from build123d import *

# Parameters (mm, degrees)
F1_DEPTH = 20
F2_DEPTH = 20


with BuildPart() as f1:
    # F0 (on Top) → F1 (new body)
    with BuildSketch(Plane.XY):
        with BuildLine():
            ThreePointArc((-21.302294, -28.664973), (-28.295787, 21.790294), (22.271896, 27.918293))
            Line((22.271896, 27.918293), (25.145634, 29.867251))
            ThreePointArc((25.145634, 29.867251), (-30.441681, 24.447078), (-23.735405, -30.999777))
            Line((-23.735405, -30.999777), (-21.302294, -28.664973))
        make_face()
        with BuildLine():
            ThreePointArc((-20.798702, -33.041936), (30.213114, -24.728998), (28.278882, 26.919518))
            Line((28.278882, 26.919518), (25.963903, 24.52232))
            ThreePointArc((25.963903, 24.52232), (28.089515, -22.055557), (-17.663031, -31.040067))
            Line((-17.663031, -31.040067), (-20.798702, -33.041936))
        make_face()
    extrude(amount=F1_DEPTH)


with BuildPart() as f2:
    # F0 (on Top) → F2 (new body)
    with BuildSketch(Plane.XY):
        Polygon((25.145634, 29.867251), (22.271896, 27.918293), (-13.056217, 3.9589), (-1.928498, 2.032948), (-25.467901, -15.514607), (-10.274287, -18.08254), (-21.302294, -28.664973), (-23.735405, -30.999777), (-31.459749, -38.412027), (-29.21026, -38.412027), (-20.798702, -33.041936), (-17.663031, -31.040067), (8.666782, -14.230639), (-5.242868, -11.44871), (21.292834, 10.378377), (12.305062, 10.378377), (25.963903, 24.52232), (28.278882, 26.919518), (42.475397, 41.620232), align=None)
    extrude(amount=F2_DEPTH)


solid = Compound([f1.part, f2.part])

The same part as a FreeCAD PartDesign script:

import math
import FreeCAD as App
import Part
import Sketcher

V = App.Vector
Q = App.Units.Quantity

doc = App.newDocument("Part")
params = doc.addObject("Spreadsheet::Sheet", "Params")
for row, (alias, value) in enumerate([
    ("pad1_length", "20 mm"),
    ("pad2_length", "20 mm"),
], start=1):
    params.set(f"A{row}", alias)
    params.set(f"B{row}", "=" + value)
    params.setAlias(f"B{row}", alias)

body = doc.addObject("PartDesign::Body", "Body")
body.AllowCompound = True

# Sketch on XY plane
sketch1 = body.newObject("Sketcher::SketchObject", "Sketch")
sketch1.AttachmentSupport = (doc.getObject("XY_Plane"), [""])
sketch1.MapMode = "FlatFace"
sketch1.addGeometry([
    Part.ArcOfCircle(Part.Circle(V(0, 0.000001, 0), V(0, 0, 1), 35.713701), math.radians(51.418786), math.radians(233.382219)),  # 0
    Part.LineSegment(V(22.271896, 27.918293, 0), V(25.145634, 29.867251, 0)),  # 1
    Part.ArcOfCircle(Part.Circle(V(0, -0.000001, 0), V(0, 0, 1), 39.042997), math.radians(49.905531), math.radians(232.560029)),  # 2
    Part.LineSegment(V(-23.735405, -30.999777, 0), V(-21.302294, -28.664973, 0)),  # 3
    Part.ArcOfCircle(Part.Circle(V(0.000001, 0, 0), V(0, 0, 1), 39.042996), math.radians(-122.188929), math.radians(43.58927)),  # 4
    Part.LineSegment(V(28.278882, 26.919518, 0), V(25.963903, 24.52232, 0)),  # 5
    Part.ArcOfCircle(Part.Circle(V(0, 0, 0), V(0, 0, 1), 35.713701), math.radians(-119.641596), math.radians(43.364422)),  # 6
    Part.LineSegment(V(-17.663031, -31.040067, 0), V(-20.798702, -33.041936, 0)),  # 7
], False)
sketch1.addConstraint([
    Sketcher.Constraint("Coincident", 0, 1, 1, 1),
    Sketcher.Constraint("Coincident", 1, 2, 2, 1),
    Sketcher.Constraint("Coincident", 2, 2, 3, 1),
    Sketcher.Constraint("Coincident", 3, 2, 0, 2),
    Sketcher.Constraint("Coincident", 4, 2, 5, 1),
    Sketcher.Constraint("Coincident", 5, 2, 6, 2),
    Sketcher.Constraint("Coincident", 6, 1, 7, 1),
    Sketcher.Constraint("Coincident", 7, 2, 4, 1),
    Sketcher.Constraint("Coincident", 0, 3, -1, 1),
    Sketcher.Constraint("Coincident", 2, 3, -1, 1),
    Sketcher.Constraint("Coincident", 4, 3, -1, 1),
    Sketcher.Constraint("Coincident", 6, 3, -1, 1),
    Sketcher.Constraint("Equal", 2, 4),
    Sketcher.Constraint("Equal", 0, 6),
    Sketcher.Constraint("Radius", 0, Q("35.713701 mm")),
    Sketcher.Constraint("Radius", 2, Q("39.042997 mm")),
    Sketcher.Constraint("DistanceX", 7, 2, -1, 1, Q("20.798702 mm")),
    Sketcher.Constraint("DistanceX", 2, 2, 0, 1, Q("46.007301 mm")),
    Sketcher.Constraint("DistanceY", 5, 2, 4, 2, Q("2.397198 mm")),
    Sketcher.Constraint("Distance", 1, Q("3.472291 mm")),
    Sketcher.Constraint("Distance", 3, Q("3.372142 mm")),
    Sketcher.Constraint("DistanceY", -1, 1, 1, 2, Q("29.867251 mm")),
    Sketcher.Constraint("DistanceY", -1, 1, 4, 2, Q("26.919518 mm")),
    Sketcher.Constraint("DistanceX", 6, 1, -1, 1, Q("17.663031 mm")),
])
pad1 = body.newObject("PartDesign::Pad", "Pad")
pad1.Profile = sketch1
pad1.setExpression("Length", "Params.pad1_length")
body2 = doc.addObject("PartDesign::Body", "Body001")

# Sketch on XY plane
sketch2 = body2.newObject("Sketcher::SketchObject", "Sketch001")
sketch2.AttachmentSupport = (doc.getObject("XY_Plane001"), [""])
sketch2.MapMode = "FlatFace"
sketch2.addGeometry([
    Part.LineSegment(V(25.145634, 29.867251, 0), V(22.271896, 27.918293, 0)),  # 0
    Part.LineSegment(V(22.271896, 27.918293, 0), V(-13.056217, 3.9589, 0)),  # 1
    Part.LineSegment(V(-13.056217, 3.9589, 0), V(-1.928498, 2.032948, 0)),  # 2
    Part.LineSegment(V(-1.928498, 2.032948, 0), V(-25.467901, -15.514607, 0)),  # 3
    Part.LineSegment(V(-25.467901, -15.514607, 0), V(-10.274287, -18.08254, 0)),  # 4
    Part.LineSegment(V(-10.274287, -18.08254, 0), V(-21.302294, -28.664973, 0)),  # 5
    Part.LineSegment(V(-21.302294, -28.664973, 0), V(-23.735405, -30.999777, 0)),  # 6
    Part.LineSegment(V(-23.735405, -30.999777, 0), V(-31.459749, -38.412027, 0)),  # 7
    Part.LineSegment(V(-31.459749, -38.412027, 0), V(-29.21026, -38.412027, 0)),  # 8
    Part.LineSegment(V(-29.21026, -38.412027, 0), V(-20.798702, -33.041936, 0)),  # 9
    Part.LineSegment(V(-20.798702, -33.041936, 0), V(-17.663031, -31.040067, 0)),  # 10
    Part.LineSegment(V(-17.663031, -31.040067, 0), V(8.666782, -14.230639, 0)),  # 11
    Part.LineSegment(V(8.666782, -14.230639, 0), V(-5.242868, -11.44871, 0)),  # 12
    Part.LineSegment(V(-5.242868, -11.44871, 0), V(21.292834, 10.378377, 0)),  # 13
    Part.LineSegment(V(21.292834, 10.378377, 0), V(12.305062, 10.378377, 0)),  # 14
    Part.LineSegment(V(12.305062, 10.378377, 0), V(25.963903, 24.52232, 0)),  # 15
    Part.LineSegment(V(25.963903, 24.52232, 0), V(28.278882, 26.919518, 0)),  # 16
    Part.LineSegment(V(28.278882, 26.919518, 0), V(42.475397, 41.620232, 0)),  # 17
    Part.LineSegment(V(42.475397, 41.620232, 0), V(25.145634, 29.867251, 0)),  # 18
], False)
sketch2.addConstraint([
    Sketcher.Constraint("Coincident", 0, 2, 1, 1),
    Sketcher.Constraint("Coincident", 1, 2, 2, 1),
    Sketcher.Constraint("Coincident", 2, 2, 3, 1),
    Sketcher.Constraint("Coincident", 3, 2, 4, 1),
    Sketcher.Constraint("Coincident", 4, 2, 5, 1),
    Sketcher.Constraint("Coincident", 5, 2, 6, 1),
    Sketcher.Constraint("Coincident", 6, 2, 7, 1),
    Sketcher.Constraint("Coincident", 7, 2, 8, 1),
    Sketcher.Constraint("Coincident", 8, 2, 9, 1),
    Sketcher.Constraint("Coincident", 9, 2, 10, 1),
    Sketcher.Constraint("Coincident", 10, 2, 11, 1),
    Sketcher.Constraint("Coincident", 11, 2, 12, 1),
    Sketcher.Constraint("Coincident", 12, 2, 13, 1),
    Sketcher.Constraint("Coincident", 13, 2, 14, 1),
    Sketcher.Constraint("Coincident", 14, 2, 15, 1),
    Sketcher.Constraint("Coincident", 15, 2, 16, 1),
    Sketcher.Constraint("Coincident", 16, 2, 17, 1),
    Sketcher.Constraint("Coincident", 17, 2, 18, 1),
    Sketcher.Constraint("Coincident", 18, 2, 0, 1),
    Sketcher.Constraint("Horizontal", 8),
    Sketcher.Constraint("Horizontal", 14),
    Sketcher.Constraint("Parallel", 0, 1),
    Sketcher.Constraint("Parallel", 5, 6),
    Sketcher.Constraint("Parallel", 6, 7),
    Sketcher.Constraint("Parallel", 9, 10),
    Sketcher.Constraint("Parallel", 10, 11),
    Sketcher.Constraint("Parallel", 15, 16),
    Sketcher.Constraint("Parallel", 16, 17),
    Sketcher.Constraint("Parallel", 1, 18),
    Sketcher.Constraint("DistanceX", 1, 2, 11, 2, Q("21.722999 mm")),
    Sketcher.Constraint("DistanceX", 8, 1, 8, 2, Q("2.249489 mm")),
    Sketcher.Constraint("DistanceY", -1, 1, 1, 2, Q("3.9589 mm")),
    Sketcher.Constraint("DistanceX", 3, 2, -1, 1, Q("25.467901 mm")),
    Sketcher.Constraint("DistanceX", 9, 2, -1, 1, Q("20.798702 mm")),
    Sketcher.Constraint("DistanceY", 3, 2, 0, 2, Q("43.4329 mm")),
    Sketcher.Constraint("DistanceY", 4, 2, 11, 2, Q("3.851901 mm")),
    Sketcher.Constraint("DistanceX", 2, 2, 15, 2, Q("27.892401 mm")),
    Sketcher.Constraint("DistanceX", 0, 2, 17, 2, Q("20.203501 mm")),
    Sketcher.Constraint("DistanceX", 13, 2, 18, 2, Q("3.8528 mm")),
    Sketcher.Constraint("Distance", 0, Q("3.472291 mm")),
    Sketcher.Constraint("Distance", 2, Q("11.293158 mm")),
    Sketcher.Constraint("Distance", 3, Q("29.36018 mm")),
    Sketcher.Constraint("Distance", 6, Q("3.372142 mm")),
    Sketcher.Constraint("Distance", 9, Q("9.979588 mm")),
    Sketcher.Constraint("Distance", 15, Q("19.662529 mm")),
    Sketcher.Constraint("Distance", 16, Q("3.332519 mm")),
    Sketcher.Constraint("DistanceX", 14, 2, 14, 1, Q("8.987772 mm")),
    Sketcher.Constraint("DistanceY", -1, 1, 2, 2, Q("2.032948 mm")),
    Sketcher.Constraint("DistanceY", 4, 2, -1, 1, Q("18.08254 mm")),
    Sketcher.Constraint("DistanceX", 7, 2, -1, 1, Q("31.459749 mm")),
    Sketcher.Constraint("DistanceX", 10, 2, -1, 1, Q("17.663031 mm")),
    Sketcher.Constraint("DistanceY", 12, 2, -1, 1, Q("11.44871 mm")),
    Sketcher.Constraint("DistanceY", -1, 1, 15, 2, Q("24.52232 mm")),
    Sketcher.Constraint("DistanceX", -1, 1, 16, 2, Q("28.278882 mm")),
    Sketcher.Constraint("DistanceX", 4, 2, 2, 2, Q("8.345789 mm")),
    Sketcher.Constraint("DistanceY", 5, 2, 2, 2, Q("30.697921 mm")),
    Sketcher.Constraint("DistanceX", 4, 2, 12, 2, Q("5.031419 mm")),
])
pad2 = body2.newObject("PartDesign::Pad", "Pad001")
pad2.Profile = sketch2
pad2.setExpression("Length", "Params.pad2_length")

doc.recompute()
